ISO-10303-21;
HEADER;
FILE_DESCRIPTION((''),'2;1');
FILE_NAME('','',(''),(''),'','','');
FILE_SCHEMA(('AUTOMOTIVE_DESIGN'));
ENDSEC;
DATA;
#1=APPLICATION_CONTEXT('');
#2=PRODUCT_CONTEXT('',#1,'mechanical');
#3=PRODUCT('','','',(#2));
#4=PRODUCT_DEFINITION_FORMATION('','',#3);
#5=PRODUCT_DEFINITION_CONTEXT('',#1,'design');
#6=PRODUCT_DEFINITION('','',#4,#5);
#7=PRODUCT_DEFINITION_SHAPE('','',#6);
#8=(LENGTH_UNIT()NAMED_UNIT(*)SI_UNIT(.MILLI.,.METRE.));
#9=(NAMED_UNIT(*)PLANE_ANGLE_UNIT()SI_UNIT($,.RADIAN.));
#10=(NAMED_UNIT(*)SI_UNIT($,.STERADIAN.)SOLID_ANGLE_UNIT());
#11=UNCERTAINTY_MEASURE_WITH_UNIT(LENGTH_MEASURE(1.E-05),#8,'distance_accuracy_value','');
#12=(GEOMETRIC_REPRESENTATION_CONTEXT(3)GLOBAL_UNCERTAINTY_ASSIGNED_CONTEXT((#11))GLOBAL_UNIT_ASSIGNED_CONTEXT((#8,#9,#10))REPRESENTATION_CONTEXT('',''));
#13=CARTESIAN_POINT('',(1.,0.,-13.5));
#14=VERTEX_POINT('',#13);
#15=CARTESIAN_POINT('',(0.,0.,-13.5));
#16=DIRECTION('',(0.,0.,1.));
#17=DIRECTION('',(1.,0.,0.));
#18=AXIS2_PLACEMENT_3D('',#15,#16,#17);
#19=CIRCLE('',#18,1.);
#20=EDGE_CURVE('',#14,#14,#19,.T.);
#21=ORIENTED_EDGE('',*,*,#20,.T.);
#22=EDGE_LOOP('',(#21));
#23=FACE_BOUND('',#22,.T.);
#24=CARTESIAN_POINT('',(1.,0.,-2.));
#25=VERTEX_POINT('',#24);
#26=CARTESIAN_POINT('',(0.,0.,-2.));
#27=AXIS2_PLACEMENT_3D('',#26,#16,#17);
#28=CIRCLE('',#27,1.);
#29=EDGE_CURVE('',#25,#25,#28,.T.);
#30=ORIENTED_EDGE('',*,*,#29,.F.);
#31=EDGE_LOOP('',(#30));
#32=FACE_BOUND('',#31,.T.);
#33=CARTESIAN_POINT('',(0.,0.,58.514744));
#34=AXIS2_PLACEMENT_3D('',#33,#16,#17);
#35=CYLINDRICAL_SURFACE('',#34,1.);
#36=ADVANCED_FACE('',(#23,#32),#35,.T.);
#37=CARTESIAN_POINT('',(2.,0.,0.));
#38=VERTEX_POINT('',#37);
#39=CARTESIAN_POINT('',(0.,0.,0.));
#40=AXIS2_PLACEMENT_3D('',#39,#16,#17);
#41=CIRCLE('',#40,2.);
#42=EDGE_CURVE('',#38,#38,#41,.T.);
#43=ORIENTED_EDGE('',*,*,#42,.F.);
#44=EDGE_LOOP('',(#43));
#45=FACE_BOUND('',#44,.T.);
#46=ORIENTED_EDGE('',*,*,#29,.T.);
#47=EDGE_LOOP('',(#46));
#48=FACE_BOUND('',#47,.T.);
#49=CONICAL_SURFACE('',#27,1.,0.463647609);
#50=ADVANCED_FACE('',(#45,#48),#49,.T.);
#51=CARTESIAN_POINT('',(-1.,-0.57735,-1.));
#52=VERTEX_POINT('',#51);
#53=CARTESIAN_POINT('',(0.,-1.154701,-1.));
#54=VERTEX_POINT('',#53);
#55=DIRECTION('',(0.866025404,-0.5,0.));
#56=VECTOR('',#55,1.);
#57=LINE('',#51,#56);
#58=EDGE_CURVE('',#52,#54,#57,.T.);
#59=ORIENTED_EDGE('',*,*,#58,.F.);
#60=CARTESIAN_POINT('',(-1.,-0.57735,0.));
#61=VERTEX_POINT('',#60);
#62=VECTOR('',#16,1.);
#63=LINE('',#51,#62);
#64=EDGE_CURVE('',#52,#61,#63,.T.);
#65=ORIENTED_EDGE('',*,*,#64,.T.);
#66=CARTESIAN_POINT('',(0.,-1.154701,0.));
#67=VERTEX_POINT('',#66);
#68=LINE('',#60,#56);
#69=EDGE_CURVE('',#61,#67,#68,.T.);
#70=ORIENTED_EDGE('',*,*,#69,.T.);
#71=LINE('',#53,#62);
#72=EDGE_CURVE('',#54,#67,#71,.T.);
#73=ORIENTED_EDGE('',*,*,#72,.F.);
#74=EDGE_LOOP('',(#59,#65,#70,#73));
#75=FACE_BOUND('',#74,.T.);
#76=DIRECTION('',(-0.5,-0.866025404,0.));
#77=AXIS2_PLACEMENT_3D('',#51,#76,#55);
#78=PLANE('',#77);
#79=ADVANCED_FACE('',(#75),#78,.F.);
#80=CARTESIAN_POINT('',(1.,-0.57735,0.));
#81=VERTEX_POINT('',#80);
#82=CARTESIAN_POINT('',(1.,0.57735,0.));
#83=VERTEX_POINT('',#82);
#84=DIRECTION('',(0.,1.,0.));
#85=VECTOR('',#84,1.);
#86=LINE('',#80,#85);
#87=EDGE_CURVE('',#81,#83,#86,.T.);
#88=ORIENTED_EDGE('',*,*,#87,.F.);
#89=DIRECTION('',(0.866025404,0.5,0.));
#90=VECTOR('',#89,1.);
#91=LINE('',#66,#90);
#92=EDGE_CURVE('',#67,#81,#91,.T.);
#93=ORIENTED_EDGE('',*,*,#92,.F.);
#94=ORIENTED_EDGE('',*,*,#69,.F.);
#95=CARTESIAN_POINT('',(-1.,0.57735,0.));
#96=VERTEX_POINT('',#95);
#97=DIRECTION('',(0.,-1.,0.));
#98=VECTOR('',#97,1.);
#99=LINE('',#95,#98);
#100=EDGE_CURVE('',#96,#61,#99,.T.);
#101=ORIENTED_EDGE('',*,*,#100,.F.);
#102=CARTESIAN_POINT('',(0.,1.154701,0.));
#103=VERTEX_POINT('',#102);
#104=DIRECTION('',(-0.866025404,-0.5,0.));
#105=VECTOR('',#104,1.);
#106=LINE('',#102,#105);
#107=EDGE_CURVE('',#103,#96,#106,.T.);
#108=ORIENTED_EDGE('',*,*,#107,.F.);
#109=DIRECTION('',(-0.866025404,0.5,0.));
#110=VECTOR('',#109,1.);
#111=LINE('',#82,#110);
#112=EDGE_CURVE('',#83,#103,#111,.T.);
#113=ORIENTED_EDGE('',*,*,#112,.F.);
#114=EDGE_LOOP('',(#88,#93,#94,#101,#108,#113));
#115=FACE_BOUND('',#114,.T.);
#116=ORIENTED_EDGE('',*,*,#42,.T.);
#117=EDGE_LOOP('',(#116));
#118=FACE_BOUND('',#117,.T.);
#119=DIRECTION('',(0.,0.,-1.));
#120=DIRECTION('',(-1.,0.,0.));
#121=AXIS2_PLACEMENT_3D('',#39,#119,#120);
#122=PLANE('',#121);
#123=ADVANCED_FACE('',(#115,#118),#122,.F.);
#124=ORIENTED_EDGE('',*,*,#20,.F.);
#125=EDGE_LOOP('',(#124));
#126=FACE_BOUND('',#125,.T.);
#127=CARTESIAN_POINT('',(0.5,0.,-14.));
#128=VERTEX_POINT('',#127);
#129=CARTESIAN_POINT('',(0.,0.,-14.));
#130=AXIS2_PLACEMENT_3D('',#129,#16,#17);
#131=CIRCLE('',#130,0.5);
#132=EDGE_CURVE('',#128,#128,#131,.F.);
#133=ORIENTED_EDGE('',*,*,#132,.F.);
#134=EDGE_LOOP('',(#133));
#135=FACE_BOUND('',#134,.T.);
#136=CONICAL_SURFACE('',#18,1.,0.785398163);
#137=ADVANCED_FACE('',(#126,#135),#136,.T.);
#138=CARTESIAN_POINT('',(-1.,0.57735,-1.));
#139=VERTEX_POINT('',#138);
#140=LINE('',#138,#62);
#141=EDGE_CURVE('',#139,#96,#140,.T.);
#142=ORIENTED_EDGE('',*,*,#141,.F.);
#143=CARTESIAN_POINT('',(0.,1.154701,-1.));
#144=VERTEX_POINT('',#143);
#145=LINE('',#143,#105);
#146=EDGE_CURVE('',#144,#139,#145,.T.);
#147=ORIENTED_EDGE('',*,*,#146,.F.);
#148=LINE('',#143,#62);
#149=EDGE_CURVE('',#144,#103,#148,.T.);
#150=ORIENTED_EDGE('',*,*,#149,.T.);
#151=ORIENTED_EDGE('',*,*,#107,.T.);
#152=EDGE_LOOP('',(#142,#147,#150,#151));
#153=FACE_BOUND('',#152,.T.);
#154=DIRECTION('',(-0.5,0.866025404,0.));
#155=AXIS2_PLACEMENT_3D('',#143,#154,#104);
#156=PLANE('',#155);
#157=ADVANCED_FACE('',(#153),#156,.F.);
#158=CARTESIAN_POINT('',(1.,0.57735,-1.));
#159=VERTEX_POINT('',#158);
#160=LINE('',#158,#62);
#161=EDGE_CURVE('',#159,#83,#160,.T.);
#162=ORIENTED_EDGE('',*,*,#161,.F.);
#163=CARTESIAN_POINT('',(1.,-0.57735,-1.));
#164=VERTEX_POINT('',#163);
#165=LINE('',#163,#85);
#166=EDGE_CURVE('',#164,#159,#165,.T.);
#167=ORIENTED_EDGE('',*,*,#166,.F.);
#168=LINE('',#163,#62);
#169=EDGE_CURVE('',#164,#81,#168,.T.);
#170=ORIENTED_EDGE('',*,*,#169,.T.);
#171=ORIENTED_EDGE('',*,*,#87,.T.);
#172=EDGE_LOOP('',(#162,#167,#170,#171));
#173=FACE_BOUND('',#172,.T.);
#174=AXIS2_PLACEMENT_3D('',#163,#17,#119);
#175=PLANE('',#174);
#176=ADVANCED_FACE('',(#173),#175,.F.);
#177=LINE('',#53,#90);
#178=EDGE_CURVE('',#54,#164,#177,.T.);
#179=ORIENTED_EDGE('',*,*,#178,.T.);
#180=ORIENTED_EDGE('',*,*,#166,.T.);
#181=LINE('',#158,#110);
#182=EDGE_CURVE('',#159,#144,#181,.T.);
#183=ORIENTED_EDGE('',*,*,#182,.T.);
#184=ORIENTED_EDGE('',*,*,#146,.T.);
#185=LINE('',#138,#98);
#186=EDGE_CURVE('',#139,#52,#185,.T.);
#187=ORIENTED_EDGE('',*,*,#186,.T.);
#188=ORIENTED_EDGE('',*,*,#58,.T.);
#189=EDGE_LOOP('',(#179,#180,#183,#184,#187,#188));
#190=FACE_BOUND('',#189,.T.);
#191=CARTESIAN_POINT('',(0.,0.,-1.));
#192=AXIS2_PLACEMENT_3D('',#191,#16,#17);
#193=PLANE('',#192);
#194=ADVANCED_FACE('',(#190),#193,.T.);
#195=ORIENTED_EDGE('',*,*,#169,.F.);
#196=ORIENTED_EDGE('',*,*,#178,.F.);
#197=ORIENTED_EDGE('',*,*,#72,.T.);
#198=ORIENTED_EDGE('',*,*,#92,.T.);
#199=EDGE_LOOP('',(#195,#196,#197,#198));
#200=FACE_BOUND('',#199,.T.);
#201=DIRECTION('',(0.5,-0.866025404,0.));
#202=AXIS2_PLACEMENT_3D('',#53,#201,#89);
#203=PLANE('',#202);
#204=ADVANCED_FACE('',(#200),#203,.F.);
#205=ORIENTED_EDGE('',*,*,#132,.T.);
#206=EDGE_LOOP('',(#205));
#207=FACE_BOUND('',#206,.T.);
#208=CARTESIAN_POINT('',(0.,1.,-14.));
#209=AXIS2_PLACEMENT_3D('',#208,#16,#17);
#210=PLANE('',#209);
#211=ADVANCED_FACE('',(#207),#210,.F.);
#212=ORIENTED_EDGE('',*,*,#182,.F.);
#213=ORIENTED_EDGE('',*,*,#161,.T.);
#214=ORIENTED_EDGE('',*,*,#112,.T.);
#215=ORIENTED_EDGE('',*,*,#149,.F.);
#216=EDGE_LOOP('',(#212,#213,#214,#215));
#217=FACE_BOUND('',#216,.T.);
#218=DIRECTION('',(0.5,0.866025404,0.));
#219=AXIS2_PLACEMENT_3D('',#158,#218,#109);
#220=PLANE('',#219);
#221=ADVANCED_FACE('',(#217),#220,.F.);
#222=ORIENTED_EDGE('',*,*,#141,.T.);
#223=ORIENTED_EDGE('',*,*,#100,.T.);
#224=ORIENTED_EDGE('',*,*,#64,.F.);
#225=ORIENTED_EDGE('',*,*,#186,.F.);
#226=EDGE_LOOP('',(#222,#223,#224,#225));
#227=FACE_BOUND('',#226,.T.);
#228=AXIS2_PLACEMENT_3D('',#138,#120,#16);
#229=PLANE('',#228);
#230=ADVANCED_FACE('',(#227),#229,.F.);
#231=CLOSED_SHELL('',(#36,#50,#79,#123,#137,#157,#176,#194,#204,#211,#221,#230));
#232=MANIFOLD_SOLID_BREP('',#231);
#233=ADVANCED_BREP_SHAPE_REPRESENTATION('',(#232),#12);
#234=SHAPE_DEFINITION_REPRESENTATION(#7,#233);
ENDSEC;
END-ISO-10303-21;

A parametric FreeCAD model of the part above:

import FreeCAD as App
import Part
import Sketcher
from FreeCAD import Vector
Q = App.Units.Quantity


def edges_at(feature, points):
    """Names of the edges that pass closest to the given points."""
    edges = feature.Shape.Edges
    near = lambda p: min(range(len(edges)), key=lambda i: edges[i].distToShape(Part.Vertex(*p))[0])
    return sorted({f"Edge{near(p) + 1}" for p in points})


def add_polygon(sketch, points):
    """Adds a closed chain of lines whose ends are joined by coincident constraints."""
    first, n = sketch.GeometryCount, len(points)
    for a, b in zip(points, points[1:] + points[:1]):
        sketch.addGeometry(Part.LineSegment(App.Vector(*a, 0), App.Vector(*b, 0)), False)
    for i in range(n):
        sketch.addConstraint(Sketcher.Constraint("Coincident", first + i, 2, first + (i + 1) % n, 1))

doc = App.newDocument("Part")
body = doc.addObject("PartDesign::Body", "Body")

# Sketch on YZ plane
sketch1 = body.newObject("Sketcher::SketchObject", "Sketch")
sketch1.AttachmentSupport = (doc.getObject("YZ_Plane"), [""])
sketch1.MapMode = "FlatFace"
add_polygon(sketch1, [(2, 0), (0, 0), (0, -14), (1, -14), (1, -2)])  # lines 0-4
sketch1.addConstraint([
    Sketcher.Constraint("Horizontal", 0),
    Sketcher.Constraint("Vertical", 1),
    Sketcher.Constraint("Horizontal", 2),
    Sketcher.Constraint("Vertical", 3),
    Sketcher.Constraint("Coincident", 0, 2, -1, 1),
    Sketcher.Constraint("DistanceX", 0, 2, 0, 1, Q("2 mm")),
    Sketcher.Constraint("DistanceX", 2, 1, 2, 2, Q("1 mm")),
    Sketcher.Constraint("DistanceY", 1, 2, 1, 1, Q("14 mm")),
    Sketcher.Constraint("DistanceY", 3, 1, 3, 2, Q("12 mm")),
])
revolution = body.newObject("PartDesign::Revolution", "Revolution")
revolution.Profile = sketch1
revolution.ReferenceAxis = (sketch1, ["V_Axis"])
revolution.Angle = 360

# Sketch on XY plane
sketch2 = body.newObject("Sketcher::SketchObject", "Sketch001")
sketch2.AttachmentSupport = (doc.getObject("XY_Plane"), [""])
sketch2.MapMode = "FlatFace"
add_polygon(sketch2, [(0, 1.2), (-1, 0.6), (-1, -0.6), (0, -1.2), (1, -0.6), (1, 0.6)])  # lines 0-5
sketch2.addConstraint([
    Sketcher.Constraint("Vertical", 1),
    Sketcher.Constraint("Vertical", 4),
    Sketcher.Constraint("Symmetric", 0, 2, 3, 2, -1, 1),
    Sketcher.Constraint("Symmetric", 2, 2, 5, 2, -1, 1),
    Sketcher.Constraint("PointOnObject", 2, 2, -2),
    Sketcher.Constraint("Parallel", 2, 5),
    Sketcher.Constraint("Horizontal", 1, 2, 3, 2),
    Sketcher.Constraint("Angle", 0, Q("-150 deg")),
    Sketcher.Constraint("DistanceX", 0, 2, -1, 1, Q("1 mm")),
    Sketcher.Constraint("DistanceY", 1, 2, 1, 1, Q("1.154701 mm")),
])
pocket1 = body.newObject("PartDesign::Pocket", "Pocket")
pocket1.Profile = sketch2
pocket1.Length = 1
doc.recompute()

chamfer = body.newObject("PartDesign::Chamfer", "Chamfer")
chamfer.Base = (pocket1, edges_at(pocket1, [(-1, 0, -14)]))
chamfer.Size = 0.5

doc.recompute()
